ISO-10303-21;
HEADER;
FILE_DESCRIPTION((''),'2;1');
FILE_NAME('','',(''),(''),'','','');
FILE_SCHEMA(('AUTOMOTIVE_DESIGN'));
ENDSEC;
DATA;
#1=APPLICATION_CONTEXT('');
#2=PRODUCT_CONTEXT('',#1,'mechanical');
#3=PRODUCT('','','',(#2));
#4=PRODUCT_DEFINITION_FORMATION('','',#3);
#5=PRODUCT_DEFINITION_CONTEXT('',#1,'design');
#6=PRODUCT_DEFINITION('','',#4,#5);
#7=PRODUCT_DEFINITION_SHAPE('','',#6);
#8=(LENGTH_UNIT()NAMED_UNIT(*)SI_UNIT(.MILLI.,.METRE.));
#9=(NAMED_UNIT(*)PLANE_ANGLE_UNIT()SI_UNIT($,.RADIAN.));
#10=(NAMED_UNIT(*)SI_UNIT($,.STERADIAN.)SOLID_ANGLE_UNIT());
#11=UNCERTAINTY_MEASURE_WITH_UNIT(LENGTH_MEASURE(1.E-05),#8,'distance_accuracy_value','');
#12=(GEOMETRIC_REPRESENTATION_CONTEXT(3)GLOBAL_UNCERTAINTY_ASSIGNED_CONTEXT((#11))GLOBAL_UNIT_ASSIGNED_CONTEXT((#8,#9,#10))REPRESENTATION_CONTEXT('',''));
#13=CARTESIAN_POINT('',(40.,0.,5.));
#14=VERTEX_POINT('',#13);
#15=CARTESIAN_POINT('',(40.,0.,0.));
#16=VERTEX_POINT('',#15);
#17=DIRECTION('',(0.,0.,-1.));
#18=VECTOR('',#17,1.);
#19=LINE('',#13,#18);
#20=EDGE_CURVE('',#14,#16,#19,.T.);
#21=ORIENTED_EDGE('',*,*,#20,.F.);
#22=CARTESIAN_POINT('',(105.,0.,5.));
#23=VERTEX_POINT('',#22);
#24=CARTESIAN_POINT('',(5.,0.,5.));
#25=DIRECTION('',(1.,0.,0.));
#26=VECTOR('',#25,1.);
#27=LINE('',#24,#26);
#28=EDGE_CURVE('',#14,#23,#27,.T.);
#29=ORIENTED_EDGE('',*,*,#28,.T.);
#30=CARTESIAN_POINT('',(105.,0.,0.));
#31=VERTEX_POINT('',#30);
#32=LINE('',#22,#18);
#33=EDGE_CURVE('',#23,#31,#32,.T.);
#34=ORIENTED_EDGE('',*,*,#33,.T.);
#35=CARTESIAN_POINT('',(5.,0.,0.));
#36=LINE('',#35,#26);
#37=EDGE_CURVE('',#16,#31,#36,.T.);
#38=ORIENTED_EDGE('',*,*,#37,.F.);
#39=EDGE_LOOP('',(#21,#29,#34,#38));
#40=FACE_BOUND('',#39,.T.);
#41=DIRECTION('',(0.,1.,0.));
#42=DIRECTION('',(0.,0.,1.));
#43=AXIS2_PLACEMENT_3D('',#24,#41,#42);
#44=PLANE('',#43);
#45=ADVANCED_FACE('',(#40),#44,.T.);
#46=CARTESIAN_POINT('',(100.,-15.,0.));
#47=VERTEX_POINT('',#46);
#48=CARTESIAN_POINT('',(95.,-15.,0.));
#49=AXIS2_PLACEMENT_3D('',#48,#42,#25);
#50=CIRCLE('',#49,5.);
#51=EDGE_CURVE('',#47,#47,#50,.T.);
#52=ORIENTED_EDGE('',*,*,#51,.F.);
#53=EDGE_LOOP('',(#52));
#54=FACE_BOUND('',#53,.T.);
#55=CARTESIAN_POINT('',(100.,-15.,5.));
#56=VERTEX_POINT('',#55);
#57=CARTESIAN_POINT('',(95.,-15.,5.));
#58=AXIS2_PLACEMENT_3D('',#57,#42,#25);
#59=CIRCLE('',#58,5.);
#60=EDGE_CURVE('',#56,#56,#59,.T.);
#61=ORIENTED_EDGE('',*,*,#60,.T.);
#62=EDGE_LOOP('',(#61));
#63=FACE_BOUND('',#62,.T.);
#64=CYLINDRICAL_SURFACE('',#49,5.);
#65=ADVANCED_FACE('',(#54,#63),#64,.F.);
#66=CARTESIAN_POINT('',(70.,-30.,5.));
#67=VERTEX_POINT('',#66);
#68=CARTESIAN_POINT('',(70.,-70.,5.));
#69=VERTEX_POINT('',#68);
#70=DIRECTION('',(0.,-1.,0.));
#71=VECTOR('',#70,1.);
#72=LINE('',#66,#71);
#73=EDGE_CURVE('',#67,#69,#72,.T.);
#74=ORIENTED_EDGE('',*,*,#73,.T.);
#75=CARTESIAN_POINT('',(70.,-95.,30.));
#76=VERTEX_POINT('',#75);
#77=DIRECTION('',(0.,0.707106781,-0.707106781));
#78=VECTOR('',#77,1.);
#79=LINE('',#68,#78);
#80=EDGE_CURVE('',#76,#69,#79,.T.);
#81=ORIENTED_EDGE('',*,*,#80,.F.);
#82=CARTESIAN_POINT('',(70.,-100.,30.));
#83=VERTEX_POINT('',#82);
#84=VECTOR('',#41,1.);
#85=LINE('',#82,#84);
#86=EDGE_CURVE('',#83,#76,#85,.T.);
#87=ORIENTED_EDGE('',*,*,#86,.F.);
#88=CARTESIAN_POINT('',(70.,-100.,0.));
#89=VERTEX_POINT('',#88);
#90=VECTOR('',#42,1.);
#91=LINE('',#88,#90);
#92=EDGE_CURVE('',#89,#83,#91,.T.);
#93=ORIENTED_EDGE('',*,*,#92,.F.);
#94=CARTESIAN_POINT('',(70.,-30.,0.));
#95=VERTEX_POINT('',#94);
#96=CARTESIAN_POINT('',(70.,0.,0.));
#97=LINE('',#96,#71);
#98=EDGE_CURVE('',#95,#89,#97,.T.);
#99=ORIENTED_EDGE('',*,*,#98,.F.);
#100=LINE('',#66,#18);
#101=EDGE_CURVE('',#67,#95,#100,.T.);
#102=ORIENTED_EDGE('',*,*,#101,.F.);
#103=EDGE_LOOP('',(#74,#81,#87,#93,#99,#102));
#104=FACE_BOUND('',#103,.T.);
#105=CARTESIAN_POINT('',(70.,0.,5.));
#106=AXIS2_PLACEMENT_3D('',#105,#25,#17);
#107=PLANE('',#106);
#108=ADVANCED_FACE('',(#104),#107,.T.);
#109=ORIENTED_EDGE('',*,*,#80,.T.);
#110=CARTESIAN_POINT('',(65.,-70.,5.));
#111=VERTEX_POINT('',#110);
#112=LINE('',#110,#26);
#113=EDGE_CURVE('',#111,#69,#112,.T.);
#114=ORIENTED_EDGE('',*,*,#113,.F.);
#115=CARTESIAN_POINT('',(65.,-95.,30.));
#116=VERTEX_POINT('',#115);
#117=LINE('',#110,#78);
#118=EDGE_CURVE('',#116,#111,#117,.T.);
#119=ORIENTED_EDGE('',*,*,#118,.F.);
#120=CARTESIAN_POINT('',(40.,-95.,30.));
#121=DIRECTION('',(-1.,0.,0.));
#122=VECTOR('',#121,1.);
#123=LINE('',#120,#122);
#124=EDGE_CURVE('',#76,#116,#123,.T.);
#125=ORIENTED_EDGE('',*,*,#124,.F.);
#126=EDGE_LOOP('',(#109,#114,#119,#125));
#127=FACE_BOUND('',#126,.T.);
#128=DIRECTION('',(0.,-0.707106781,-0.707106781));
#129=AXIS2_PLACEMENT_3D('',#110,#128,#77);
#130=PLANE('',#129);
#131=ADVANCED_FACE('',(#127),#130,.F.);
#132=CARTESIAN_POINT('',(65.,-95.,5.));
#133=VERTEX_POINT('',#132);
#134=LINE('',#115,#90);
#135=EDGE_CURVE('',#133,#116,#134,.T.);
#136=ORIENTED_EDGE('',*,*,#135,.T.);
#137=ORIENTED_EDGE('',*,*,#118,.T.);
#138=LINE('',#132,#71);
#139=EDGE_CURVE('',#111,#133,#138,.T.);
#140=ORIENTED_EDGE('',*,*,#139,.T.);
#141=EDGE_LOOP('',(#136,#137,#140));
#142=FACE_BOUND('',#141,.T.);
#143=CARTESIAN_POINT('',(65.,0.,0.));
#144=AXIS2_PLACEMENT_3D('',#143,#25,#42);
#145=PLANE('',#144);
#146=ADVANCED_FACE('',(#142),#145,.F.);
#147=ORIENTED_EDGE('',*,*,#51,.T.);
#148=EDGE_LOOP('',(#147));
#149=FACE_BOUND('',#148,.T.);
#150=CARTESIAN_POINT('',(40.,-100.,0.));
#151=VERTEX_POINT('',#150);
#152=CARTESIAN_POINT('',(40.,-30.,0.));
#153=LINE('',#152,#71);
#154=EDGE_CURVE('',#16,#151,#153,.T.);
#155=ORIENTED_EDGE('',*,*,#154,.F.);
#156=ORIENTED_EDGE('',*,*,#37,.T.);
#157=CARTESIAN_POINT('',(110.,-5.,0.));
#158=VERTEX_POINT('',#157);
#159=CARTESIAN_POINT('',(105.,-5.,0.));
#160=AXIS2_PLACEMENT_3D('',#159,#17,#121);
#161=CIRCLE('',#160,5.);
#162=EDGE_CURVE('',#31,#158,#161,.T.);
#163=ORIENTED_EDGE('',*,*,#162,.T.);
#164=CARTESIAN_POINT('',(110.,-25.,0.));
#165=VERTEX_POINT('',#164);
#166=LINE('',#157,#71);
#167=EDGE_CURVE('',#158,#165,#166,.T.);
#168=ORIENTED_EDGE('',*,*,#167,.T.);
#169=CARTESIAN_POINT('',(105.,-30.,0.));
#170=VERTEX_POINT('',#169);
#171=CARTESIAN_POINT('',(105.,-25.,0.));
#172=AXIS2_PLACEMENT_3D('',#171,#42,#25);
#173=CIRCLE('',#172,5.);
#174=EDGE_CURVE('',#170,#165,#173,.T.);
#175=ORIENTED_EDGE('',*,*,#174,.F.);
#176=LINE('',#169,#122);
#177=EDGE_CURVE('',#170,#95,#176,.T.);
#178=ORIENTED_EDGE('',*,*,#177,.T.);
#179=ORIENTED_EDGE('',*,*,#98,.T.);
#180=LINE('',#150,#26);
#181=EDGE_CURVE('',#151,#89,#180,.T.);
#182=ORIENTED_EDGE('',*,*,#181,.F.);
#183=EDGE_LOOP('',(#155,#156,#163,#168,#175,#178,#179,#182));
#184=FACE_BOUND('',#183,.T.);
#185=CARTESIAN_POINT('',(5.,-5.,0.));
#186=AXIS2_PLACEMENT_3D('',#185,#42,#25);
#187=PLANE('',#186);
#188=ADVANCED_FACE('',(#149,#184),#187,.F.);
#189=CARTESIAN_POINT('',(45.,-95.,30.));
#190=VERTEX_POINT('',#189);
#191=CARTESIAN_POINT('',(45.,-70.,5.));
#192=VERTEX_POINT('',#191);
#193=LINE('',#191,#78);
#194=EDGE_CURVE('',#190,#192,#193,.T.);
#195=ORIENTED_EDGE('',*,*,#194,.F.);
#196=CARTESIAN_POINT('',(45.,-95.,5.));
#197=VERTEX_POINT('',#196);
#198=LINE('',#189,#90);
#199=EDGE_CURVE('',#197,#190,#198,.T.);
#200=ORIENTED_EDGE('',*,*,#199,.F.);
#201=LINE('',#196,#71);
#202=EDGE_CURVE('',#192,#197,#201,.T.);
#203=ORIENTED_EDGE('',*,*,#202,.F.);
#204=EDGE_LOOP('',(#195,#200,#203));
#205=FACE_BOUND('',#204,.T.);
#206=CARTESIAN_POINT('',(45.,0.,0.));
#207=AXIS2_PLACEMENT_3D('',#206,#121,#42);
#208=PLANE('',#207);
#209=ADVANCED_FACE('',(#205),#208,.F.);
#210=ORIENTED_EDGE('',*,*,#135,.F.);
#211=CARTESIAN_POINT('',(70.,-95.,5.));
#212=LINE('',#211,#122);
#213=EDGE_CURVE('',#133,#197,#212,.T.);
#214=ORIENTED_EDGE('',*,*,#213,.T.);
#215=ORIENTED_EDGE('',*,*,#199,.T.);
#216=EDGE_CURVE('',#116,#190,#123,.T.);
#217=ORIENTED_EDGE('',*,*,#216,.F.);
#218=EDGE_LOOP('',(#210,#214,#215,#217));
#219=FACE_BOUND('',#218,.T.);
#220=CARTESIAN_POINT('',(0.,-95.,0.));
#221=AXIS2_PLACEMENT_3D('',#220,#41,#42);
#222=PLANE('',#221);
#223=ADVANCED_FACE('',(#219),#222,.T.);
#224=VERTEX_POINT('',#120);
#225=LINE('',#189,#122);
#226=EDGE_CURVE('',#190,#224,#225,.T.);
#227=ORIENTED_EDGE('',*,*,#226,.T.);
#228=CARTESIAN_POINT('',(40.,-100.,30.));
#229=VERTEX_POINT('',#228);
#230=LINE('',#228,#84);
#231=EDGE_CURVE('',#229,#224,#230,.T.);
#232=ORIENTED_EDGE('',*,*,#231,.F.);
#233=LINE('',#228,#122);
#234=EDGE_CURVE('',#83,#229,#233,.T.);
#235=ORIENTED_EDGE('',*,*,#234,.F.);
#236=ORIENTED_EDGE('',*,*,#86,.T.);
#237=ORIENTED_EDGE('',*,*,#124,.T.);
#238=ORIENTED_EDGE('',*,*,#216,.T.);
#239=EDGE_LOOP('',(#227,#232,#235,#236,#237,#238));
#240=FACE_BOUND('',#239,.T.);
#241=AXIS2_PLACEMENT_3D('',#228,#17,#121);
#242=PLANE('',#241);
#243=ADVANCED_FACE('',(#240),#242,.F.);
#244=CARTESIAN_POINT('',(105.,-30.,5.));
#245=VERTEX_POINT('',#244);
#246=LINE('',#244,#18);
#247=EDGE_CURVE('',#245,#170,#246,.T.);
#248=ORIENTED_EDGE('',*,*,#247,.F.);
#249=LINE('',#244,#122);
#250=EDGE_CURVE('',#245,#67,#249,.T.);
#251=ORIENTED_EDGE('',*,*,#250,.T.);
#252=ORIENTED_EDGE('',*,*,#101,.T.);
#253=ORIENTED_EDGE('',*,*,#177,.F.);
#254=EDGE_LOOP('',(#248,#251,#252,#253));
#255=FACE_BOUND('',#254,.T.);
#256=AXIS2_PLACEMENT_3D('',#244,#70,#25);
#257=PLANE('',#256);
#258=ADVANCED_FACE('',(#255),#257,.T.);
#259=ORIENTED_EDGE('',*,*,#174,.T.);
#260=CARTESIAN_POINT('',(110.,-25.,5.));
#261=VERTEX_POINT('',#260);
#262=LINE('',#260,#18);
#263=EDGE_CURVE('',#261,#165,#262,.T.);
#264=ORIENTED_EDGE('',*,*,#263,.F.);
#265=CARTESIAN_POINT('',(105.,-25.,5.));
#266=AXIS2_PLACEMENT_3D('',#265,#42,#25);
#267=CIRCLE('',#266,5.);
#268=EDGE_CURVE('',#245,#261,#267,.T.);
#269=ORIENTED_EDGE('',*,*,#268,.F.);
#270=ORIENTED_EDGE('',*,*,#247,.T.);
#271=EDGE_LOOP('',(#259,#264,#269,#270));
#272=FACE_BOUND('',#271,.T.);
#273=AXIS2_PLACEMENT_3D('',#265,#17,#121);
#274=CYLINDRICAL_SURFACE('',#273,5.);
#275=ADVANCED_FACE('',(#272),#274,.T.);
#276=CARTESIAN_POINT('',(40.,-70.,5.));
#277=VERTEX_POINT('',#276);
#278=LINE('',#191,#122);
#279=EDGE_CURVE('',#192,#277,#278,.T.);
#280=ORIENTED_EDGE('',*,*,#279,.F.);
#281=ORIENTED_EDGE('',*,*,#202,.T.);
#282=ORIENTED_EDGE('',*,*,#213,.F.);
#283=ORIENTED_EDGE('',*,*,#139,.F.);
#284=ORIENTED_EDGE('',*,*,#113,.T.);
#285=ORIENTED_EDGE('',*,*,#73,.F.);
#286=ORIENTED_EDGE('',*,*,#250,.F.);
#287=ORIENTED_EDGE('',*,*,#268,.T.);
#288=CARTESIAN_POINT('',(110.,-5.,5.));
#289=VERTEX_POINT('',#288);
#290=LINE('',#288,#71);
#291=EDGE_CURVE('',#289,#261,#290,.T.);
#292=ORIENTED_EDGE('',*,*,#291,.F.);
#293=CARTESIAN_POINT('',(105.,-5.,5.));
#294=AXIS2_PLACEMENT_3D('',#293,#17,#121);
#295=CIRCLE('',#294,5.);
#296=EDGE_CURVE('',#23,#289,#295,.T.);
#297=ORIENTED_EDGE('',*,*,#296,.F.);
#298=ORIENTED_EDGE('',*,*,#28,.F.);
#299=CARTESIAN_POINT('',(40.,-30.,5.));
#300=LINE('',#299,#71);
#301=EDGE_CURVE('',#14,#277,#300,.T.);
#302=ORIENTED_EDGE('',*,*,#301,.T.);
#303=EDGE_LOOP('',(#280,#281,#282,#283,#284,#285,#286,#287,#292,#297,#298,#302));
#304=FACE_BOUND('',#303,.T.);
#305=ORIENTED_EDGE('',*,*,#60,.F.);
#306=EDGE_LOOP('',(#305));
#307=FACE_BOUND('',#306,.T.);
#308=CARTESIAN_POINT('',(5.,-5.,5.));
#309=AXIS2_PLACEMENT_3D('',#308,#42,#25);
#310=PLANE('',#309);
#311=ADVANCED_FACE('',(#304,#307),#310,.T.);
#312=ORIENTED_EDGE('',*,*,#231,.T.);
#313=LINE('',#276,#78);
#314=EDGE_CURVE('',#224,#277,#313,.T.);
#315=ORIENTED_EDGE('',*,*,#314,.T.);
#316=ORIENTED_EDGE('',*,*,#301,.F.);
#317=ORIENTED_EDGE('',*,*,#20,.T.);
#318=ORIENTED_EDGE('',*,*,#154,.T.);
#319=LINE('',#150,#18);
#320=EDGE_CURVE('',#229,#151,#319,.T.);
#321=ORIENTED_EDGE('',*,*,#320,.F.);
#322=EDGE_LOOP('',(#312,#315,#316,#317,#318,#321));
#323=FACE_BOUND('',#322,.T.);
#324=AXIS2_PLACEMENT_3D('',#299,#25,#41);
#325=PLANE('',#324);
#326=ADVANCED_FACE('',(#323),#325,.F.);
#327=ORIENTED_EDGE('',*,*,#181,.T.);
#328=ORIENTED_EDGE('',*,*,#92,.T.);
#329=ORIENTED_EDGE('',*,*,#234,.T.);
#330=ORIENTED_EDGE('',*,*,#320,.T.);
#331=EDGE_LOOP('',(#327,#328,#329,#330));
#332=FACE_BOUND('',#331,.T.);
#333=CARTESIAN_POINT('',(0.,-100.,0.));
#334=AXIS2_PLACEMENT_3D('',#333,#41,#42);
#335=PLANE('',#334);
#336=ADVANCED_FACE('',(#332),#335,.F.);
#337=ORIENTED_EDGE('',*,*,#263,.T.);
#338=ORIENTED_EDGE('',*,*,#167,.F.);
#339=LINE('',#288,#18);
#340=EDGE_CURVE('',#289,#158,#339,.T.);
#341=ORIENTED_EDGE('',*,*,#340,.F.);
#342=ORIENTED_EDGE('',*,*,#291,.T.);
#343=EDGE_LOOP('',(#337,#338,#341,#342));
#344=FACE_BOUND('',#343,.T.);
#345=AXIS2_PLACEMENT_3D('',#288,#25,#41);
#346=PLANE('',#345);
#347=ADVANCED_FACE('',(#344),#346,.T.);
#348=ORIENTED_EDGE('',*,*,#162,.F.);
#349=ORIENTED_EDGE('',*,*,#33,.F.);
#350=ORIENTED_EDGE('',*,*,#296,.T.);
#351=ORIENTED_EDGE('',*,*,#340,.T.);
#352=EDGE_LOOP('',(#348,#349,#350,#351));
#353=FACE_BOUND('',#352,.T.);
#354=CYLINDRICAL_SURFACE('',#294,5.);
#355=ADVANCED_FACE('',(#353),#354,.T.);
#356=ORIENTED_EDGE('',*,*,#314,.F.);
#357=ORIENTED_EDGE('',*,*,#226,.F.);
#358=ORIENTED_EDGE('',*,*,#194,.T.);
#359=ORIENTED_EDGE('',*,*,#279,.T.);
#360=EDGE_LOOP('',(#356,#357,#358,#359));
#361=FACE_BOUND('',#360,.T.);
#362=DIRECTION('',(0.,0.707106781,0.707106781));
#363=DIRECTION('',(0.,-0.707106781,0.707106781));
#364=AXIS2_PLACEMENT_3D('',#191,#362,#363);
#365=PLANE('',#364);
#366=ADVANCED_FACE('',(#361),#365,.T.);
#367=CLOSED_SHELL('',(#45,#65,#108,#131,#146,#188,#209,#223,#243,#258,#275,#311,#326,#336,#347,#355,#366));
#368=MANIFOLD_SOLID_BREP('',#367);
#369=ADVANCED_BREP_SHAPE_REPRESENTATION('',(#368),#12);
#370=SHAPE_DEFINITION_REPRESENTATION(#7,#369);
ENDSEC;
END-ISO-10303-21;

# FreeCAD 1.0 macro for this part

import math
import FreeCAD as App
import Part
import Sketcher
from FreeCAD import Vector

doc = App.newDocument("Part")
body = doc.addObject("PartDesign::Body", "Body")

# Sketch on XY plane
sketch1 = doc.addObject("Sketcher::SketchObject", "Sketch")
body.addObject(sketch1)
sketch1.AttachmentSupport = (doc.XY_Plane, [""])
sketch1.MapMode = "FlatFace"
sketch1.addGeometry([
    Part.LineSegment(Vector(70, 0, 0), Vector(5, 0, 0)),  # 0
    Part.ArcOfCircle(Part.Circle(Vector(5, -5, 0), Vector(0, 0, 1), 5), math.radians(90), math.radians(180)),  # 1
    Part.LineSegment(Vector(0, -5, 0), Vector(0, -25, 0)),  # 2
    Part.ArcOfCircle(Part.Circle(Vector(5, -25, 0), Vector(0, 0, 1), 5), math.radians(180), math.radians(270)),  # 3
    Part.LineSegment(Vector(5, -30, 0), Vector(40, -30, 0)),  # 4
    Part.LineSegment(Vector(40, -30, 0), Vector(40, -95, 0)),  # 5
    Part.LineSegment(Vector(40, -95, 0), Vector(70, -95, 0)),  # 6
    Part.LineSegment(Vector(70, -95, 0), Vector(70, 0, 0)),  # 7
], False)
sketch1.addConstraint([
    Sketcher.Constraint("Tangent", 0, 2, 1, 1),
    Sketcher.Constraint("Tangent", 1, 2, 2, 1),
    Sketcher.Constraint("Tangent", 2, 2, 3, 1),
    Sketcher.Constraint("Tangent", 3, 2, 4, 1),
    Sketcher.Constraint("Coincident", 4, 2, 5, 1),
    Sketcher.Constraint("Coincident", 5, 2, 6, 1),
    Sketcher.Constraint("Coincident", 6, 2, 7, 1),
    Sketcher.Constraint("Coincident", 7, 2, 0, 1),
    Sketcher.Constraint("Horizontal", 0),
    Sketcher.Constraint("Vertical", 2),
    Sketcher.Constraint("Horizontal", 4),
    Sketcher.Constraint("Vertical", 5),
    Sketcher.Constraint("Horizontal", 6),
    Sketcher.Constraint("Vertical", 7),
    Sketcher.Constraint("Equal", 1, 3),
    Sketcher.Constraint("PointOnObject", 0, 2, -1),
    Sketcher.Constraint("PointOnObject", 1, 2, -2),
    Sketcher.Constraint("Equal", 0, 5),
    Sketcher.Constraint("Radius", 1, 5.0),
    Sketcher.Constraint("DistanceX", 0, 2, 0, 1, 65.0),
    Sketcher.Constraint("DistanceX", 4, 1, 4, 2, 35.0),
    Sketcher.Constraint("DistanceY", 2, 2, 2, 1, 20.0),
])
pad1 = doc.addObject("PartDesign::Pad", "Pad")
body.addObject(pad1)
pad1.Profile = sketch1
pad1.Length = 5

# Sketch on XY plane
sketch2 = doc.addObject("Sketcher::SketchObject", "Sketch001")
body.addObject(sketch2)
sketch2.AttachmentSupport = (doc.XY_Plane, [""])
sketch2.MapMode = "FlatFace"
sketch2.AttachmentOffset = App.Placement(Vector(0, 0, 5), App.Rotation())
sketch2.addGeometry(Part.Circle(Vector(15, -15, 0), Vector(0, 0, 1), 5), False)
sketch2.addConstraint([
    Sketcher.Constraint("Diameter", 0, 10.0),
    Sketcher.Constraint("DistanceX", -1, 1, 0, 3, 15.0),
    Sketcher.Constraint("DistanceY", 0, 3, -1, 1, 15.0),
])
pocket1 = doc.addObject("PartDesign::Pocket", "Pocket")
body.addObject(pocket1)
pocket1.Profile = sketch2
pocket1.Length = 10

# Sketch on XZ plane
sketch3 = doc.addObject("Sketcher::SketchObject", "Sketch002")
body.addObject(sketch3)
sketch3.AttachmentSupport = (doc.XZ_Plane, [""])
sketch3.MapMode = "FlatFace"
sketch3.AttachmentOffset = App.Placement(Vector(0, 0, 95), App.Rotation())
sketch3.addGeometry([
    Part.LineSegment(Vector(40, 30, 0), Vector(40, 0, 0)),
    Part.LineSegment(Vector(40, 0, 0), Vector(70, 0, 0)),
    Part.LineSegment(Vector(70, 0, 0), Vector(70, 30, 0)),
    Part.LineSegment(Vector(70, 30, 0), Vector(40, 30, 0)),
], False)
sketch3.addConstraint([
    Sketcher.Constraint("Coincident", 0, 2, 1, 1),
    Sketcher.Constraint("Coincident", 1, 2, 2, 1),
    Sketcher.Constraint("Coincident", 2, 2, 3, 1),
    Sketcher.Constraint("Coincident", 3, 2, 0, 1),
    Sketcher.Constraint("Vertical", 0),
    Sketcher.Constraint("Horizontal", 1),
    Sketcher.Constraint("Vertical", 2),
    Sketcher.Constraint("Horizontal", 3),
    Sketcher.Constraint("PointOnObject", 0, 2, -1),
    Sketcher.Constraint("Equal", 3, 0),
    Sketcher.Constraint("DistanceX", 1, 1, 1, 2, 30.0),
    Sketcher.Constraint("DistanceX", -1, 1, 0, 2, 40.0),
])
pad2 = doc.addObject("PartDesign::Pad", "Pad001")
body.addObject(pad2)
pad2.Profile = sketch3
pad2.Length = 5

# Sketch on YZ plane
sketch4 = doc.addObject("Sketcher::SketchObject", "Sketch003")
body.addObject(sketch4)
sketch4.AttachmentSupport = (doc.YZ_Plane, [""])
sketch4.MapMode = "FlatFace"
sketch4.AttachmentOffset = App.Placement(Vector(0, 0, 40), App.Rotation())
sketch4.addGeometry([
    Part.LineSegment(Vector(-95, 30, 0), Vector(-70, 5, 0)),
    Part.LineSegment(Vector(-70, 5, 0), Vector(-95, 5, 0)),
    Part.LineSegment(Vector(-95, 5, 0), Vector(-95, 30, 0)),
], False)
sketch4.addConstraint([
    Sketcher.Constraint("Coincident", 0, 2, 1, 1),
    Sketcher.Constraint("Coincident", 1, 2, 2, 1),
    Sketcher.Constraint("Coincident", 2, 2, 0, 1),
    Sketcher.Constraint("Horizontal", 1),
    Sketcher.Constraint("Vertical", 2),
    Sketcher.Constraint("Equal", 1, 2),
    Sketcher.Constraint("DistanceX", 1, 2, 1, 1, 25.0),
    Sketcher.Constraint("DistanceX", 0, 2, -1, 1, 70.0),
    Sketcher.Constraint("DistanceY", -1, 1, 0, 2, 5.0),
])
pad3 = doc.addObject("PartDesign::Pad", "Pad002")
body.addObject(pad3)
pad3.Profile = sketch4
pad3.Length = 5
doc.recompute()

datumplane = doc.addObject("PartDesign::Plane", "DatumPlane")
body.addObject(datumplane)
datumplane.AttachmentSupport = (doc.YZ_Plane, [""])
datumplane.MapMode = "FlatFace"
datumplane.AttachmentOffset = App.Placement(Vector(0, 0, 55), App.Rotation())
mirrored = doc.addObject("PartDesign::Mirrored", "Mirrored")
body.addObject(mirrored)
mirrored.Originals = [pad3]
mirrored.MirrorPlane = (datumplane, [""])
body.Tip = mirrored
doc.recompute()

datumplane2 = doc.addObject("PartDesign::Plane", "DatumPlane001")
body.addObject(datumplane2)
datumplane2.AttachmentSupport = (doc.YZ_Plane, [""])
datumplane2.MapMode = "FlatFace"
datumplane2.AttachmentOffset = App.Placement(Vector(0, 0, 55), App.Rotation())
mirrored2 = doc.addObject("PartDesign::Mirrored", "Mirrored001")
body.addObject(mirrored2)
mirrored2.Originals = [pad1]
mirrored2.MirrorPlane = (datumplane2, [""])
body.Tip = mirrored2

# Sketch on XY plane
sketch5 = doc.addObject("Sketcher::SketchObject", "Sketch004")
body.addObject(sketch5)
sketch5.AttachmentSupport = (doc.XY_Plane, [""])
sketch5.MapMode = "FlatFace"
sketch5.AttachmentOffset = App.Placement(Vector(0, 0, 5), App.Rotation())
sketch5.addGeometry(Part.Circle(Vector(95, -15, 0), Vector(0, 0, 1), 5), False)
sketch5.addConstraint([
    Sketcher.Constraint("Diameter", 0, 10.0),
    Sketcher.Constraint("DistanceX", -1, 1, 0, 3, 95.0),
    Sketcher.Constraint("DistanceY", 0, 3, -1, 1, 15.0),
])
pocket2 = doc.addObject("PartDesign::Pocket", "Pocket001")
body.addObject(pocket2)
pocket2.Profile = sketch5
pocket2.Length = 5

# Sketch on XY plane
sketch6 = doc.addObject("Sketcher::SketchObject", "Sketch005")
body.addObject(sketch6)
sketch6.AttachmentSupport = (doc.XY_Plane, [""])
sketch6.MapMode = "FlatFace"
sketch6.AttachmentOffset = App.Placement(Vector(0, 0, 5), App.Rotation())
sketch6.addGeometry([
    Part.LineSegment(Vector(-7, 4, 0), Vector(-7, -30, 0)),
    Part.LineSegment(Vector(-7, -30, 0), Vector(40, -30, 0)),
    Part.LineSegment(Vector(40, -30, 0), Vector(40, 4, 0)),
    Part.LineSegment(Vector(40, 4, 0), Vector(-7, 4, 0)),
], False)
sketch6.addConstraint([
    Sketcher.Constraint("Coincident", 0, 2, 1, 1),
    Sketcher.Constraint("Coincident", 1, 2, 2, 1),
    Sketcher.Constraint("Coincident", 2, 2, 3, 1),
    Sketcher.Constraint("Coincident", 3, 2, 0, 1),
    Sketcher.Constraint("Vertical", 0),
    Sketcher.Constraint("Horizontal", 1),
    Sketcher.Constraint("Vertical", 2),
    Sketcher.Constraint("Horizontal", 3),
    Sketcher.Constraint("DistanceY", 0, 2, -1, 1, 30.0),
    Sketcher.Constraint("DistanceX", -1, 1, 1, 2, 40.0),
    Sketcher.Constraint("DistanceX", 1, 1, 1, 2, 46.541347),
    Sketcher.Constraint("DistanceY", 0, 2, 0, 1, 34.044616),
])
pocket3 = doc.addObject("PartDesign::Pocket", "Pocket002")
body.addObject(pocket3)
pocket3.Profile = sketch6
pocket3.Length = 5

doc.recompute()
